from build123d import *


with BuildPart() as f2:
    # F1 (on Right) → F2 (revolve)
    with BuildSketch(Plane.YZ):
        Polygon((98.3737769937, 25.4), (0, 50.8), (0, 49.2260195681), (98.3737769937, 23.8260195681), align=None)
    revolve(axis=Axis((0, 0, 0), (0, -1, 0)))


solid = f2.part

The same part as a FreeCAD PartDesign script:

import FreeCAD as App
import Part
import Sketcher
Q = App.Units.Quantity

doc = App.newDocument("Part")
body = doc.addObject("PartDesign::Body", "Body")

sketch1 = doc.addObject("Sketcher::SketchObject", "Sketch")
body.addObject(sketch1)
sketch1.AttachmentSupport = (doc.YZ_Plane, [""])
sketch1.MapMode = "FlatFace"
sketch1.addGeometry(Part.LineSegment(App.Vector(98.4, 25.4, 0), App.Vector(0, 50.8, 0)), False)
sketch1.addGeometry(Part.LineSegment(App.Vector(0, 50.8, 0), App.Vector(0, 49.2, 0)), False)
sketch1.addGeometry(Part.LineSegment(App.Vector(0, 49.2, 0), App.Vector(98.4, 23.8, 0)), False)
sketch1.addGeometry(Part.LineSegment(App.Vector(98.4, 23.8, 0), App.Vector(98.4, 25.4, 0)), False)
sketch1.addConstraint(Sketcher.Constraint("Coincident", 0, 2, 1, 1))
sketch1.addConstraint(Sketcher.Constraint("Coincident", 1, 2, 2, 1))
sketch1.addConstraint(Sketcher.Constraint("Coincident", 2, 2, 3, 1))
sketch1.addConstraint(Sketcher.Constraint("Coincident", 3, 2, 0, 1))
sketch1.addConstraint(Sketcher.Constraint("Vertical", 1))
sketch1.addConstraint(Sketcher.Constraint("Vertical", 3))
sketch1.addConstraint(Sketcher.Constraint("PointOnObject", 0, 2, -2))
sketch1.addConstraint(Sketcher.Constraint("Parallel", 0, 2))
sketch1.addConstraint(Sketcher.Constraint("Distance", 0, Q("4 in")))
sketch1.addConstraint(Sketcher.Constraint("DistanceY", -1, 1, 0, 2, Q("2 in")))
sketch1.addConstraint(Sketcher.Constraint("DistanceY", -1, 1, 3, 2, Q("1 in")))
sketch1.addConstraint(Sketcher.Constraint("DistanceY", 1, 2, 1, 1, Q("1.57398 mm")))
revolution = doc.addObject("PartDesign::Revolution", "Revolution")
body.addObject(revolution)
revolution.Profile = sketch1
revolution.ReferenceAxis = (sketch1, ["H_Axis"])
revolution.Angle = 360

doc.recompute()
